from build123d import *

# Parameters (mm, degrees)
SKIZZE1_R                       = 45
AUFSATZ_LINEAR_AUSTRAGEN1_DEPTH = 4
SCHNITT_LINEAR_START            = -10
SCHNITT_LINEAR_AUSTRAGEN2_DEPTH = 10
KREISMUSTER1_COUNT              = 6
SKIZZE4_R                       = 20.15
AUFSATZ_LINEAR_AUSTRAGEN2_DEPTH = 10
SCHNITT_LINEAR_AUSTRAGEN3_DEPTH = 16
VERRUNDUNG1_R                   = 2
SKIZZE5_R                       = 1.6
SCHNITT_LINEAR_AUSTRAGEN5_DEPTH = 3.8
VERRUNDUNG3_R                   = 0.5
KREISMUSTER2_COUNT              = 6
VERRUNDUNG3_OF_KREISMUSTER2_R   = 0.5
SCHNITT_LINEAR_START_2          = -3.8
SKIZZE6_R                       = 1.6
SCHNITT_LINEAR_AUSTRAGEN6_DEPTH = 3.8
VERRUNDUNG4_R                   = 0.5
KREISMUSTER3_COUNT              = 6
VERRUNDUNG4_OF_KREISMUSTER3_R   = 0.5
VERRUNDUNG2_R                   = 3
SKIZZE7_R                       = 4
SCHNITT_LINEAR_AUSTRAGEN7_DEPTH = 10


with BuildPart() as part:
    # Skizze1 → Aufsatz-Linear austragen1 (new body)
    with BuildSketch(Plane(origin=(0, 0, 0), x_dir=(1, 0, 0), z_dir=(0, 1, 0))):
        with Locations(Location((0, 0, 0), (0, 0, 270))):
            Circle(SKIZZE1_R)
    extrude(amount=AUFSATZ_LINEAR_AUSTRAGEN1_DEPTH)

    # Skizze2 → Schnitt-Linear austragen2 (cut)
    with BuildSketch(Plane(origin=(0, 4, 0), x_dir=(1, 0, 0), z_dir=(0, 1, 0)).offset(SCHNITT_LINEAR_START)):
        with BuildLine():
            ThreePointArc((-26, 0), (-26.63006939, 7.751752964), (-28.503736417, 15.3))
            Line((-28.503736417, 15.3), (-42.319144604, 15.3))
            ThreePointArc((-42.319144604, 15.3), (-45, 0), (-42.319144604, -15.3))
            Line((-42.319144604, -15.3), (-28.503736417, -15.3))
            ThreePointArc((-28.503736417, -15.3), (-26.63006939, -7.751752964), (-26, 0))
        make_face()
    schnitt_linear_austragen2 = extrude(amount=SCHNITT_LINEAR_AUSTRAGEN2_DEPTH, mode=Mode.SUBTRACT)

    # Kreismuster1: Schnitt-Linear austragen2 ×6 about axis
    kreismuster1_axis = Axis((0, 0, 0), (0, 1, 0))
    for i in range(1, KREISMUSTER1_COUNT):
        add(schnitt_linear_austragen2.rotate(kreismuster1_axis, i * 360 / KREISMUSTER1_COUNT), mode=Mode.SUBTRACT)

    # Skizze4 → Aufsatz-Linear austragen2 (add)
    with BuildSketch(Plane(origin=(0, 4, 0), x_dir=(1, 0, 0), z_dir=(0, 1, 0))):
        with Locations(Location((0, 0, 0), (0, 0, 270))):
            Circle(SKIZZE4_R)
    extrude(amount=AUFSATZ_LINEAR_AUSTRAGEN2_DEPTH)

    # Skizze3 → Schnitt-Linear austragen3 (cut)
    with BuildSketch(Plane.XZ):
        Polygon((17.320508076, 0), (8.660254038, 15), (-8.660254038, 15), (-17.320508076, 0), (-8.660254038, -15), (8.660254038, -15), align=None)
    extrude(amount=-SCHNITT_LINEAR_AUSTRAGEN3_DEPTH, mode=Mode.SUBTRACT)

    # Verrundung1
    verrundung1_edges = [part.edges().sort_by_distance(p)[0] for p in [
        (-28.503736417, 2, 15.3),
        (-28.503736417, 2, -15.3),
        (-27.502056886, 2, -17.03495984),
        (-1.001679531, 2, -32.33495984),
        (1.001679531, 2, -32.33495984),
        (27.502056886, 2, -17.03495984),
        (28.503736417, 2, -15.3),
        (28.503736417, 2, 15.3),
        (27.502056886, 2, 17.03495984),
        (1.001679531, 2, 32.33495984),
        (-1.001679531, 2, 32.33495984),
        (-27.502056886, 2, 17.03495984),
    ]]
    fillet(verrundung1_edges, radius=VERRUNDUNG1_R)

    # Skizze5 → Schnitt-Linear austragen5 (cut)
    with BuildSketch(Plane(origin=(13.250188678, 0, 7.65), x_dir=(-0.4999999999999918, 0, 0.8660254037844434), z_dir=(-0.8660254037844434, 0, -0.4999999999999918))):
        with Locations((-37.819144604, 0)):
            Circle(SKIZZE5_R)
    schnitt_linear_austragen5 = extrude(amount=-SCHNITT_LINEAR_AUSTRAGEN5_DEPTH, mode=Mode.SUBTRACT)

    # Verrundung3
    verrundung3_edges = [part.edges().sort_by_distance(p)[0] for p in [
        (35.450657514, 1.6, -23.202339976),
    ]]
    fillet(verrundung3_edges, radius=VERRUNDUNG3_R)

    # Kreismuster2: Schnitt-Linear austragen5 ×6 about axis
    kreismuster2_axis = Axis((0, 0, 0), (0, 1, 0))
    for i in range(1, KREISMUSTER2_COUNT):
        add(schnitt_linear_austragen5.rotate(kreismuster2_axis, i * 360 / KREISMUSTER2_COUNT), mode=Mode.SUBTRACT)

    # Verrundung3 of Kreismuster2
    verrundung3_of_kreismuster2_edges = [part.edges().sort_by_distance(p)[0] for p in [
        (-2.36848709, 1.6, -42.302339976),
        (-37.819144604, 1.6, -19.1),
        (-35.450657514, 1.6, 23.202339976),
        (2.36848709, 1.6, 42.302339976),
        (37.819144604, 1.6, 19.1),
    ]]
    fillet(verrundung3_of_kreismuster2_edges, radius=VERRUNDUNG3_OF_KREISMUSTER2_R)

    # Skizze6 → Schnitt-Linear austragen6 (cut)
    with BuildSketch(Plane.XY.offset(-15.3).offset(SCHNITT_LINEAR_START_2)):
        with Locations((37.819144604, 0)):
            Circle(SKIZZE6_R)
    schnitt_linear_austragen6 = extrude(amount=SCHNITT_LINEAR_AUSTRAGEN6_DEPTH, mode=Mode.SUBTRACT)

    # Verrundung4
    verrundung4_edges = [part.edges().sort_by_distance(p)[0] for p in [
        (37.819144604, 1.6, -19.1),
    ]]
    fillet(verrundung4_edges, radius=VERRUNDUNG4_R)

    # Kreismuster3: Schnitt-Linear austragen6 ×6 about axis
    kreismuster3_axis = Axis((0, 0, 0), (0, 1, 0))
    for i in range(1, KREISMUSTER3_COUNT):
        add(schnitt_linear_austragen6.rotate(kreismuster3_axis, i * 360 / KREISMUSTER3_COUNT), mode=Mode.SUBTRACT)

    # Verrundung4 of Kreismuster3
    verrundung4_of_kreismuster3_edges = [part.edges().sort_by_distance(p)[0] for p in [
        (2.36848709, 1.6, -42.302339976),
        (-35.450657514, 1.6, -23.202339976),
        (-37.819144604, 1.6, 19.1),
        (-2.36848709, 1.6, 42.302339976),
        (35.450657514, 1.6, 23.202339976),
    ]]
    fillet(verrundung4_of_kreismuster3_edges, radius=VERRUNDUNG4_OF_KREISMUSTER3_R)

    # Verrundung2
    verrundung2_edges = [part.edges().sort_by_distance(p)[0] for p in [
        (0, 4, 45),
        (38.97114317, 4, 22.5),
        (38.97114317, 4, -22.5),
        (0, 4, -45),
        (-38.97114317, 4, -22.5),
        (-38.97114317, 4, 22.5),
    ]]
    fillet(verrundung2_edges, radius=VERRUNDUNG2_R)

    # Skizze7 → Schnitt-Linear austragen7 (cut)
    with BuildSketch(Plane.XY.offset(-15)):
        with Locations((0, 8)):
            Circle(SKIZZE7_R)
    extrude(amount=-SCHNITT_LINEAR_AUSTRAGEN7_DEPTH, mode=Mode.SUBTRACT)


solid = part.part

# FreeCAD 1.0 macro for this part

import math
import FreeCAD as App
import Part
import Sketcher
from FreeCAD import Vector
Q = App.Units.Quantity


def edges_at(feature, points):
    """Names of the edges that pass closest to the given points."""
    edges = feature.Shape.Edges
    near = lambda p: min(range(len(edges)), key=lambda i: edges[i].distToShape(Part.Vertex(*p))[0])
    return sorted({f"Edge{near(p) + 1}" for p in points})

doc = App.newDocument("Part")
body = doc.addObject("PartDesign::Body", "Body")

# Sketch on XZ plane
sketch1 = body.newObject("Sketcher::SketchObject", "Sketch")
sketch1.AttachmentSupport = (doc.getObject("XZ_Plane"), [""])
sketch1.MapMode = "FlatFace"
sketch1.addGeometry(Part.Circle(Vector(0, 0, 0), Vector(0, 0, 1), 45), False)
sketch1.addConstraint([
    Sketcher.Constraint("Coincident", 0, 3, -1, 1),
    Sketcher.Constraint("Diameter", 0, Q("90 mm")),
])
pad1 = body.newObject("PartDesign::Pad", "Pad")
pad1.Profile = sketch1
pad1.Length = 4
pad1.Reversed = True

# Sketch on XZ plane
sketch2 = body.newObject("Sketcher::SketchObject", "Sketch001")
sketch2.AttachmentSupport = (doc.getObject("XZ_Plane"), [""])
sketch2.MapMode = "FlatFace"
sketch2.AttachmentOffset = App.Placement(Vector(0, 0, 6), App.Rotation())
sketch2.addGeometry([
    Part.ArcOfCircle(Part.Circle(Vector(-74, 0, 0), Vector(0, 0, 1), 48), math.radians(-18.59), math.radians(0)),  # 0
    Part.LineSegment(Vector(-29, -15, 0), Vector(-42, -15, 0)),  # 1
    Part.ArcOfCircle(Part.Circle(Vector(0, 0, 0), Vector(0, 0, 1), 45), math.radians(160), math.radians(200)),  # 2
    Part.LineSegment(Vector(-42, 15, 0), Vector(-29, 15, 0)),  # 3
    Part.ArcOfCircle(Part.Circle(Vector(-74, 0, 0), Vector(0, 0, 1), 48), math.radians(0), math.radians(18.59)),  # 4
], False)
sketch2.addConstraint([
    Sketcher.Constraint("Coincident", 0, 1, 1, 1),
    Sketcher.Constraint("Coincident", 1, 2, 2, 2),
    Sketcher.Constraint("Coincident", 2, 1, 3, 1),
    Sketcher.Constraint("Coincident", 3, 2, 4, 2),
    Sketcher.Constraint("Tangent", 4, 1, 0, 2),
    Sketcher.Constraint("Horizontal", 1),
    Sketcher.Constraint("Horizontal", 3),
    Sketcher.Constraint("Coincident", 2, 3, -1, 1),
    Sketcher.Constraint("Equal", 0, 4),
    Sketcher.Constraint("Symmetric", 0, 1, 3, 2, -1),
    Sketcher.Constraint("PointOnObject", 4, 1, -1),
    Sketcher.Constraint("Radius", 0, Q("48 mm")),
    Sketcher.Constraint("Radius", 2, Q("45 mm")),
    Sketcher.Constraint("DistanceX", 0, 3, -1, 1, Q("74 mm")),
    Sketcher.Constraint("DistanceY", 0, 1, -1, 1, Q("15.3 mm")),
])
pocket1 = body.newObject("PartDesign::Pocket", "Pocket")
pocket1.Profile = sketch2
pocket1.Length = 10
doc.recompute()

polarpattern = body.newObject("PartDesign::PolarPattern", "PolarPattern")
polarpattern.Originals = [pocket1]
polarpattern.Axis = (doc.getObject("Y_Axis"), [""])
polarpattern.Angle = 360
polarpattern.Occurrences = 6
body.Tip = polarpattern

# Sketch on XZ plane
sketch3 = body.newObject("Sketcher::SketchObject", "Sketch002")
sketch3.AttachmentSupport = (doc.getObject("XZ_Plane"), [""])
sketch3.MapMode = "FlatFace"
sketch3.AttachmentOffset = App.Placement(Vector(0, 0, -4), App.Rotation())
sketch3.addGeometry(Part.Circle(Vector(0, 0, 0), Vector(0, 0, 1), 20), False)
sketch3.addConstraint([
    Sketcher.Constraint("Coincident", 0, 3, -1, 1),
    Sketcher.Constraint("Diameter", 0, Q("40.3 mm")),
])
pad2 = body.newObject("PartDesign::Pad", "Pad001")
pad2.Profile = sketch3
pad2.Length = 10
pad2.Reversed = True

# Sketch on XZ plane
sketch4 = body.newObject("Sketcher::SketchObject", "Sketch003")
sketch4.AttachmentSupport = (doc.getObject("XZ_Plane"), [""])
sketch4.MapMode = "FlatFace"
sketch4.addGeometry([
    Part.LineSegment(Vector(17, 0, 0), Vector(9, 15, 0)),  # 0
    Part.LineSegment(Vector(9, 15, 0), Vector(-9, 15, 0)),  # 1
    Part.LineSegment(Vector(-9, 15, 0), Vector(-17, 0, 0)),  # 2
    Part.LineSegment(Vector(-17, 0, 0), Vector(-9, -15, 0)),  # 3
    Part.LineSegment(Vector(-9, -15, 0), Vector(9, -15, 0)),  # 4
    Part.LineSegment(Vector(9, -15, 0), Vector(17, 0, 0)),  # 5
], False)
sketch4.addConstraint([
    Sketcher.Constraint("Coincident", 0, 2, 1, 1),
    Sketcher.Constraint("Coincident", 1, 2, 2, 1),
    Sketcher.Constraint("Coincident", 2, 2, 3, 1),
    Sketcher.Constraint("Coincident", 3, 2, 4, 1),
    Sketcher.Constraint("Coincident", 4, 2, 5, 1),
    Sketcher.Constraint("Coincident", 5, 2, 0, 1),
    Sketcher.Constraint("Horizontal", 1),
    Sketcher.Constraint("Horizontal", 4),
    Sketcher.Constraint("Symmetric", 0, 2, 3, 2, -1, 1),
    Sketcher.Constraint("Symmetric", 2, 2, 5, 2, -1, 1),
    Sketcher.Constraint("PointOnObject", 2, 2, -1),
    Sketcher.Constraint("Parallel", 2, 5),
    Sketcher.Constraint("Vertical", 1, 2, 3, 2),
    Sketcher.Constraint("Angle", 0, Q("120 deg")),
    Sketcher.Constraint("DistanceY", -1, 1, 0, 2, Q("15 mm")),
    Sketcher.Constraint("DistanceX", 1, 2, 1, 1, Q("17.320508 mm")),
])
pocket2 = body.newObject("PartDesign::Pocket", "Pocket001")
pocket2.Profile = sketch4
pocket2.Length = 16
doc.recompute()

fillet = body.newObject("PartDesign::Fillet", "Fillet")
fillet.Base = (pocket2, edges_at(pocket2, [
    (-28.504, 2, 15.3),
    (-28.504, 2, -15.3),
    (-27.502, 2, -17.035),
    (-1.002, 2, -32.335),
    (1.002, 2, -32.335),
    (27.502, 2, -17.035),
    (28.504, 2, -15.3),
    (28.504, 2, 15.3),
    (27.502, 2, 17.035),
    (1.002, 2, 32.335),
    (-1.002, 2, 32.335),
    (-27.502, 2, 17.035),
]))
fillet.Radius = 2

# Sketch on an angled plane
sketch5 = body.newObject("Sketcher::SketchObject", "Sketch004")
sketch5.Placement = App.Placement(Vector(13.250189, 0, 7.65), App.Rotation(Vector(-0.5, 0, 0.866025404), Vector(0, 1, 0), Vector(-0.866025404, 0, -0.5), "ZXY"))
sketch5.addGeometry(Part.Circle(Vector(-37.8, 0, 0), Vector(0, 0, 1), 1.6), False)
sketch5.addConstraint([
    Sketcher.Constraint("PointOnObject", 0, 3, -1),
    Sketcher.Constraint("Diameter", 0, Q("3.2 mm")),
    Sketcher.Constraint("DistanceX", 0, 3, -1, 1, Q("37.819145 mm")),
])
pocket3 = body.newObject("PartDesign::Pocket", "Pocket002")
pocket3.Profile = sketch5
pocket3.Length = 3.8
doc.recompute()

fillet2 = body.newObject("PartDesign::Fillet", "Fillet001")
fillet2.Base = (pocket3, edges_at(pocket3, [(35.451, 1.6, -23.202)]))
fillet2.Radius = 0.5
doc.recompute()

polarpattern2 = body.newObject("PartDesign::PolarPattern", "PolarPattern001")
polarpattern2.Originals = [pocket3]
polarpattern2.Axis = (doc.getObject("Y_Axis"), [""])
polarpattern2.Angle = 360
polarpattern2.Occurrences = 6
body.Tip = polarpattern2
doc.recompute()

fillet3 = body.newObject("PartDesign::Fillet", "Fillet002")
fillet3.Base = (polarpattern2, edges_at(polarpattern2, [
    (-2.368, 1.6, -42.302),
    (-37.819, 1.6, -19.1),
    (-35.451, 1.6, 23.202),
    (2.368, 1.6, 42.302),
    (37.819, 1.6, 19.1),
]))
fillet3.Radius = 0.5

# Sketch on XY plane
sketch6 = body.newObject("Sketcher::SketchObject", "Sketch005")
sketch6.AttachmentSupport = (doc.getObject("XY_Plane"), [""])
sketch6.MapMode = "FlatFace"
sketch6.AttachmentOffset = App.Placement(Vector(0, 0, -19.1), App.Rotation())
sketch6.addGeometry(Part.Circle(Vector(37.8, 0, 0), Vector(0, 0, 1), 1.6), False)
sketch6.addConstraint([
    Sketcher.Constraint("PointOnObject", 0, 3, -1),
    Sketcher.Constraint("Diameter", 0, Q("3.2 mm")),
    Sketcher.Constraint("DistanceX", -1, 1, 0, 3, Q("37.819145 mm")),
])
pocket4 = body.newObject("PartDesign::Pocket", "Pocket003")
pocket4.Profile = sketch6
pocket4.Length = 3.8
pocket4.Reversed = True
doc.recompute()

fillet4 = body.newObject("PartDesign::Fillet", "Fillet003")
fillet4.Base = (pocket4, edges_at(pocket4, [(37.819, 1.6, -19.1)]))
fillet4.Radius = 0.5
doc.recompute()

polarpattern3 = body.newObject("PartDesign::PolarPattern", "PolarPattern002")
polarpattern3.Originals = [pocket4]
polarpattern3.Axis = (doc.getObject("Y_Axis"), [""])
polarpattern3.Angle = 360
polarpattern3.Occurrences = 6
body.Tip = polarpattern3
doc.recompute()

fillet5 = body.newObject("PartDesign::Fillet", "Fillet004")
fillet5.Base = (polarpattern3, edges_at(polarpattern3, [
    (2.368, 1.6, -42.302),
    (-35.451, 1.6, -23.202),
    (-37.819, 1.6, 19.1),
    (-2.368, 1.6, 42.302),
    (35.451, 1.6, 23.202),
]))
fillet5.Radius = 0.5
doc.recompute()

fillet6 = body.newObject("PartDesign::Fillet", "Fillet005")
fillet6.Base = (fillet5, edges_at(fillet5, [
    (0, 4, 45),
    (38.971, 4, 22.5),
    (38.971, 4, -22.5),
    (0, 4, -45),
    (-38.971, 4, -22.5),
    (-38.971, 4, 22.5),
]))
fillet6.Radius = 3

# Sketch on XY plane
sketch7 = body.newObject("Sketcher::SketchObject", "Sketch006")
sketch7.AttachmentSupport = (doc.getObject("XY_Plane"), [""])
sketch7.MapMode = "FlatFace"
sketch7.AttachmentOffset = App.Placement(Vector(0, 0, -15), App.Rotation())
sketch7.addGeometry(Part.Circle(Vector(0, 8, 0), Vector(0, 0, 1), 4), False)
sketch7.addConstraint([
    Sketcher.Constraint("PointOnObject", 0, 3, -2),
    Sketcher.Constraint("Diameter", 0, Q("8 mm")),
    Sketcher.Constraint("DistanceY", -1, 1, 0, 3, Q("8 mm")),
])
pocket5 = body.newObject("PartDesign::Pocket", "Pocket004")
pocket5.Profile = sketch7
pocket5.Length = 10

doc.recompute()
